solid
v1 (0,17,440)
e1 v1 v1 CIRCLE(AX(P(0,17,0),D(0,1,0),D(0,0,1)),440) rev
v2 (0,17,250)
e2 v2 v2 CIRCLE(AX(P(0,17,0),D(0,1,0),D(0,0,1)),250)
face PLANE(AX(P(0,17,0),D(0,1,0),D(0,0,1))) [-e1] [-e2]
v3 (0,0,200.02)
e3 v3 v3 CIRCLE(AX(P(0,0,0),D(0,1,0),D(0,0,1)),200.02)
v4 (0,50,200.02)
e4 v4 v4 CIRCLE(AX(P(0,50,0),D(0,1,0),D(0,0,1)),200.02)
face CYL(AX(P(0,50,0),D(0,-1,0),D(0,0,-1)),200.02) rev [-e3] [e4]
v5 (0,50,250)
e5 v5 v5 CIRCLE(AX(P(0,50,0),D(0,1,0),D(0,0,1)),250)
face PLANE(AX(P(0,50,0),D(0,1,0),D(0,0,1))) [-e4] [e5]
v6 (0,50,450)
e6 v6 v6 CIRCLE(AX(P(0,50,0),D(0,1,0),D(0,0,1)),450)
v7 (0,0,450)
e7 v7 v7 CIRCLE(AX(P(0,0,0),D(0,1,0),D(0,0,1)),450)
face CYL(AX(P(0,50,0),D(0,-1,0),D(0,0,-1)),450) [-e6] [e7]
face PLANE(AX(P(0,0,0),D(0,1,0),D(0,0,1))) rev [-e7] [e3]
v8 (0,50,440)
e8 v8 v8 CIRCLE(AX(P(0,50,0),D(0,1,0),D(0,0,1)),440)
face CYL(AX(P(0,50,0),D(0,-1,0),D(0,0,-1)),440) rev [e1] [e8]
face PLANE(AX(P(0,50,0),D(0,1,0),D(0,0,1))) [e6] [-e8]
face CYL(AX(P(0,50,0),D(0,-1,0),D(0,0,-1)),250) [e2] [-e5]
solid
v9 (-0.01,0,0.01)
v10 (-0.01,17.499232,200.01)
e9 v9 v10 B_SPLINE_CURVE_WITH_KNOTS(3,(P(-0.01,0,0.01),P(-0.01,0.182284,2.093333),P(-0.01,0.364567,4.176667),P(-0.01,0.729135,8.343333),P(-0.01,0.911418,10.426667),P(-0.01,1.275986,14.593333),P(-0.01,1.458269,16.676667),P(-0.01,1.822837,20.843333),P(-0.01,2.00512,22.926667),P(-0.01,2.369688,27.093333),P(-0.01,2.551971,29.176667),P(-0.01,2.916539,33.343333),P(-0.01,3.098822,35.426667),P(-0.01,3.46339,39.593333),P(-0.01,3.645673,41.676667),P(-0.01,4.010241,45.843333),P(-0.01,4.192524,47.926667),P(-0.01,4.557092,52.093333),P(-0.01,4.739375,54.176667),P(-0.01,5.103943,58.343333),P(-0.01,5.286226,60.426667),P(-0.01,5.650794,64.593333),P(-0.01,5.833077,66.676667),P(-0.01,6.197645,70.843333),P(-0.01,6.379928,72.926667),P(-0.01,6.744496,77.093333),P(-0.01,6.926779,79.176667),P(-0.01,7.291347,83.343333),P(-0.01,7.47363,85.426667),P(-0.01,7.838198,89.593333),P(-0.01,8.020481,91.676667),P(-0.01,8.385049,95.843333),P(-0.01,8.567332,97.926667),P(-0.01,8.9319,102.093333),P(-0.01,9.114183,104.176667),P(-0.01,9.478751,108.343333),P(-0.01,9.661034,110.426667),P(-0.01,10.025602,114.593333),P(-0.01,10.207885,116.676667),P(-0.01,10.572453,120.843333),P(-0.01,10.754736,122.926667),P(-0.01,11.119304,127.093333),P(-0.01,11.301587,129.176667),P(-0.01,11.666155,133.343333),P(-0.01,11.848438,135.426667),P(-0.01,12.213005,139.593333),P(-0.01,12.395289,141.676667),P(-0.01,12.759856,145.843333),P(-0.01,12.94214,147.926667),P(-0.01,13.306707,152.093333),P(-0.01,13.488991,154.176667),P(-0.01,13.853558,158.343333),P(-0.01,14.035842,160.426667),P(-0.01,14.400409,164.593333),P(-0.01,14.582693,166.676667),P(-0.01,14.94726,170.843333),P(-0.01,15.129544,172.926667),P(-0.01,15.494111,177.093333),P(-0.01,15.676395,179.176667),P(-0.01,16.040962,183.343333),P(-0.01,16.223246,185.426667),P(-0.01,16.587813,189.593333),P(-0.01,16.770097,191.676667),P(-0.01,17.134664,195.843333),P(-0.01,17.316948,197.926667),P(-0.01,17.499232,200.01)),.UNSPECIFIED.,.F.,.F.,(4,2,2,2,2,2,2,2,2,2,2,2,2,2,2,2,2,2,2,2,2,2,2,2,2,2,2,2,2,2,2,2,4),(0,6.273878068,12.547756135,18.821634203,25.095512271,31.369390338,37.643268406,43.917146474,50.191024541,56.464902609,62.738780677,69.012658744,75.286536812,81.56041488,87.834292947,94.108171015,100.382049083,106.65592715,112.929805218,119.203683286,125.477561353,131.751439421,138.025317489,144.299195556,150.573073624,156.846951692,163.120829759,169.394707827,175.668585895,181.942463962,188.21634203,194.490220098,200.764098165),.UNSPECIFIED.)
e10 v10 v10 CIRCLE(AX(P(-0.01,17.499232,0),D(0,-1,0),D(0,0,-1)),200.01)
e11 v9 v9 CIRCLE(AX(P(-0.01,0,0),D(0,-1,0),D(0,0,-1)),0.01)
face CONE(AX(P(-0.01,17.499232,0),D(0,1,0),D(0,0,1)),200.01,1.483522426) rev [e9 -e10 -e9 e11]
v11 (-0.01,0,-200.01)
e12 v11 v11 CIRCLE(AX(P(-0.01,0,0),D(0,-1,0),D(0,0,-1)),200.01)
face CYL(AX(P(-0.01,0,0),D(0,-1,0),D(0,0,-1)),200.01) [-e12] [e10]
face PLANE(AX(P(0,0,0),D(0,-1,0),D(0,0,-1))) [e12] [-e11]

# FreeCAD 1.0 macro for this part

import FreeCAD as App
import Part
import Sketcher
from FreeCAD import Vector


def add_polygon(sketch, points):
    """Adds a closed chain of lines whose ends are joined by coincident constraints."""
    first, n = sketch.GeometryCount, len(points)
    for a, b in zip(points, points[1:] + points[:1]):
        sketch.addGeometry(Part.LineSegment(App.Vector(*a, 0), App.Vector(*b, 0)), False)
    for i in range(n):
        sketch.addConstraint(Sketcher.Constraint("Coincident", first + i, 2, first + (i + 1) % n, 1))

doc = App.newDocument("Part")
body = doc.addObject("PartDesign::Body", "Body")

# Sketch on XY plane
sketch1 = body.newObject("Sketcher::SketchObject", "Sketch")
sketch1.AttachmentSupport = (doc.getObject("XY_Plane"), [""])
sketch1.MapMode = "FlatFace"
add_polygon(sketch1, [(200, 17), (0, 0), (200, 0)])  # lines 0-2
sketch1.addGeometry(Part.LineSegment(Vector(0, 0, 0), Vector(0, 17, 0)), True)  # axis
sketch1.addConstraint(Sketcher.Constraint("Horizontal", 1))
sketch1.addConstraint(Sketcher.Constraint("Vertical", 2))
sketch1.addConstraint(Sketcher.Constraint("Vertical", 3))
sketch1.addConstraint(Sketcher.Constraint("Coincident", 0, 2, -1, 1))
sketch1.addConstraint(Sketcher.Constraint("PointOnObject", 3, 1, -1))
sketch1.addConstraint(Sketcher.Constraint("Horizontal", 2, 2, 3, 2))
sketch1.addConstraint(Sketcher.Constraint("DistanceX", 1, 1, 1, 2, 200.0))
sketch1.addConstraint(Sketcher.Constraint("DistanceX", 3, 1, -1, 1, 0.01))
sketch1.addConstraint(Sketcher.Constraint("Distance", 0, 200.764098))
revolution = body.newObject("PartDesign::Revolution", "Revolution")
revolution.Profile = sketch1
revolution.ReferenceAxis = (sketch1, ["Axis0"])
revolution.Angle = 360
body2 = doc.addObject("PartDesign::Body", "Body001")

# Sketch on XZ plane
sketch2 = body2.newObject("Sketcher::SketchObject", "Sketch001")
sketch2.AttachmentSupport = (doc.getObject("XZ_Plane001"), [""])
sketch2.MapMode = "FlatFace"
sketch2.addGeometry(Part.Circle(Vector(0, 0, 0), Vector(0, 0, 1), 250), False)
sketch2.addGeometry(Part.Circle(Vector(0, 0, 0), Vector(0, 0, 1), 200), False)
sketch2.addConstraint(Sketcher.Constraint("Coincident", 0, 3, -1, 1))
sketch2.addConstraint(Sketcher.Constraint("Coincident", 1, 3, -1, 1))
sketch2.addConstraint(Sketcher.Constraint("Diameter", 0, 500.0))
sketch2.addConstraint(Sketcher.Constraint("Diameter", 1, 400.04))
pad1 = body2.newObject("PartDesign::Pad", "Pad")
pad1.Profile = sketch2
pad1.Length = 50
pad1.Reversed = True
body3 = doc.addObject("PartDesign::Body", "Body002")

# Sketch on XZ plane
sketch3 = body3.newObject("Sketcher::SketchObject", "Sketch002")
sketch3.AttachmentSupport = (doc.getObject("XZ_Plane002"), [""])
sketch3.MapMode = "FlatFace"
sketch3.addGeometry(Part.Circle(Vector(0, 0, 0), Vector(0, 0, 1), 450), False)
sketch3.addGeometry(Part.Circle(Vector(0, 0, 0), Vector(0, 0, 1), 440), False)
sketch3.addConstraint(Sketcher.Constraint("Coincident", 0, 3, -1, 1))
sketch3.addConstraint(Sketcher.Constraint("Coincident", 1, 3, -1, 1))
sketch3.addConstraint(Sketcher.Constraint("Diameter", 0, 900.0))
sketch3.addConstraint(Sketcher.Constraint("Diameter", 1, 880.0))
pad2 = body3.newObject("PartDesign::Pad", "Pad001")
pad2.Profile = sketch3
pad2.Length = 50
pad2.Reversed = True
body2.AllowCompound = True
doc.recompute()

boolean = body2.newObject("PartDesign::Boolean", "Boolean")
boolean.Type = "Fuse"
boolean.addObjects([body3])

# Sketch on XZ plane
sketch4 = body2.newObject("Sketcher::SketchObject", "Sketch003")
sketch4.AttachmentSupport = (doc.getObject("XZ_Plane001"), [""])
sketch4.MapMode = "FlatFace"
sketch4.addGeometry(Part.Circle(Vector(0, 0, 0), Vector(0, 0, 1), 440), False)
sketch4.addGeometry(Part.Circle(Vector(0, 0, 0), Vector(0, 0, 1), 250), False)
sketch4.addConstraint(Sketcher.Constraint("Coincident", 0, 3, -1, 1))
sketch4.addConstraint(Sketcher.Constraint("Coincident", 1, 3, -1, 1))
sketch4.addConstraint(Sketcher.Constraint("Diameter", 0, 880.0))
sketch4.addConstraint(Sketcher.Constraint("Diameter", 1, 500.0))
pad3 = body2.newObject("PartDesign::Pad", "Pad002")
pad3.Profile = sketch4
pad3.Length = 17
pad3.Reversed = True

doc.recompute()
